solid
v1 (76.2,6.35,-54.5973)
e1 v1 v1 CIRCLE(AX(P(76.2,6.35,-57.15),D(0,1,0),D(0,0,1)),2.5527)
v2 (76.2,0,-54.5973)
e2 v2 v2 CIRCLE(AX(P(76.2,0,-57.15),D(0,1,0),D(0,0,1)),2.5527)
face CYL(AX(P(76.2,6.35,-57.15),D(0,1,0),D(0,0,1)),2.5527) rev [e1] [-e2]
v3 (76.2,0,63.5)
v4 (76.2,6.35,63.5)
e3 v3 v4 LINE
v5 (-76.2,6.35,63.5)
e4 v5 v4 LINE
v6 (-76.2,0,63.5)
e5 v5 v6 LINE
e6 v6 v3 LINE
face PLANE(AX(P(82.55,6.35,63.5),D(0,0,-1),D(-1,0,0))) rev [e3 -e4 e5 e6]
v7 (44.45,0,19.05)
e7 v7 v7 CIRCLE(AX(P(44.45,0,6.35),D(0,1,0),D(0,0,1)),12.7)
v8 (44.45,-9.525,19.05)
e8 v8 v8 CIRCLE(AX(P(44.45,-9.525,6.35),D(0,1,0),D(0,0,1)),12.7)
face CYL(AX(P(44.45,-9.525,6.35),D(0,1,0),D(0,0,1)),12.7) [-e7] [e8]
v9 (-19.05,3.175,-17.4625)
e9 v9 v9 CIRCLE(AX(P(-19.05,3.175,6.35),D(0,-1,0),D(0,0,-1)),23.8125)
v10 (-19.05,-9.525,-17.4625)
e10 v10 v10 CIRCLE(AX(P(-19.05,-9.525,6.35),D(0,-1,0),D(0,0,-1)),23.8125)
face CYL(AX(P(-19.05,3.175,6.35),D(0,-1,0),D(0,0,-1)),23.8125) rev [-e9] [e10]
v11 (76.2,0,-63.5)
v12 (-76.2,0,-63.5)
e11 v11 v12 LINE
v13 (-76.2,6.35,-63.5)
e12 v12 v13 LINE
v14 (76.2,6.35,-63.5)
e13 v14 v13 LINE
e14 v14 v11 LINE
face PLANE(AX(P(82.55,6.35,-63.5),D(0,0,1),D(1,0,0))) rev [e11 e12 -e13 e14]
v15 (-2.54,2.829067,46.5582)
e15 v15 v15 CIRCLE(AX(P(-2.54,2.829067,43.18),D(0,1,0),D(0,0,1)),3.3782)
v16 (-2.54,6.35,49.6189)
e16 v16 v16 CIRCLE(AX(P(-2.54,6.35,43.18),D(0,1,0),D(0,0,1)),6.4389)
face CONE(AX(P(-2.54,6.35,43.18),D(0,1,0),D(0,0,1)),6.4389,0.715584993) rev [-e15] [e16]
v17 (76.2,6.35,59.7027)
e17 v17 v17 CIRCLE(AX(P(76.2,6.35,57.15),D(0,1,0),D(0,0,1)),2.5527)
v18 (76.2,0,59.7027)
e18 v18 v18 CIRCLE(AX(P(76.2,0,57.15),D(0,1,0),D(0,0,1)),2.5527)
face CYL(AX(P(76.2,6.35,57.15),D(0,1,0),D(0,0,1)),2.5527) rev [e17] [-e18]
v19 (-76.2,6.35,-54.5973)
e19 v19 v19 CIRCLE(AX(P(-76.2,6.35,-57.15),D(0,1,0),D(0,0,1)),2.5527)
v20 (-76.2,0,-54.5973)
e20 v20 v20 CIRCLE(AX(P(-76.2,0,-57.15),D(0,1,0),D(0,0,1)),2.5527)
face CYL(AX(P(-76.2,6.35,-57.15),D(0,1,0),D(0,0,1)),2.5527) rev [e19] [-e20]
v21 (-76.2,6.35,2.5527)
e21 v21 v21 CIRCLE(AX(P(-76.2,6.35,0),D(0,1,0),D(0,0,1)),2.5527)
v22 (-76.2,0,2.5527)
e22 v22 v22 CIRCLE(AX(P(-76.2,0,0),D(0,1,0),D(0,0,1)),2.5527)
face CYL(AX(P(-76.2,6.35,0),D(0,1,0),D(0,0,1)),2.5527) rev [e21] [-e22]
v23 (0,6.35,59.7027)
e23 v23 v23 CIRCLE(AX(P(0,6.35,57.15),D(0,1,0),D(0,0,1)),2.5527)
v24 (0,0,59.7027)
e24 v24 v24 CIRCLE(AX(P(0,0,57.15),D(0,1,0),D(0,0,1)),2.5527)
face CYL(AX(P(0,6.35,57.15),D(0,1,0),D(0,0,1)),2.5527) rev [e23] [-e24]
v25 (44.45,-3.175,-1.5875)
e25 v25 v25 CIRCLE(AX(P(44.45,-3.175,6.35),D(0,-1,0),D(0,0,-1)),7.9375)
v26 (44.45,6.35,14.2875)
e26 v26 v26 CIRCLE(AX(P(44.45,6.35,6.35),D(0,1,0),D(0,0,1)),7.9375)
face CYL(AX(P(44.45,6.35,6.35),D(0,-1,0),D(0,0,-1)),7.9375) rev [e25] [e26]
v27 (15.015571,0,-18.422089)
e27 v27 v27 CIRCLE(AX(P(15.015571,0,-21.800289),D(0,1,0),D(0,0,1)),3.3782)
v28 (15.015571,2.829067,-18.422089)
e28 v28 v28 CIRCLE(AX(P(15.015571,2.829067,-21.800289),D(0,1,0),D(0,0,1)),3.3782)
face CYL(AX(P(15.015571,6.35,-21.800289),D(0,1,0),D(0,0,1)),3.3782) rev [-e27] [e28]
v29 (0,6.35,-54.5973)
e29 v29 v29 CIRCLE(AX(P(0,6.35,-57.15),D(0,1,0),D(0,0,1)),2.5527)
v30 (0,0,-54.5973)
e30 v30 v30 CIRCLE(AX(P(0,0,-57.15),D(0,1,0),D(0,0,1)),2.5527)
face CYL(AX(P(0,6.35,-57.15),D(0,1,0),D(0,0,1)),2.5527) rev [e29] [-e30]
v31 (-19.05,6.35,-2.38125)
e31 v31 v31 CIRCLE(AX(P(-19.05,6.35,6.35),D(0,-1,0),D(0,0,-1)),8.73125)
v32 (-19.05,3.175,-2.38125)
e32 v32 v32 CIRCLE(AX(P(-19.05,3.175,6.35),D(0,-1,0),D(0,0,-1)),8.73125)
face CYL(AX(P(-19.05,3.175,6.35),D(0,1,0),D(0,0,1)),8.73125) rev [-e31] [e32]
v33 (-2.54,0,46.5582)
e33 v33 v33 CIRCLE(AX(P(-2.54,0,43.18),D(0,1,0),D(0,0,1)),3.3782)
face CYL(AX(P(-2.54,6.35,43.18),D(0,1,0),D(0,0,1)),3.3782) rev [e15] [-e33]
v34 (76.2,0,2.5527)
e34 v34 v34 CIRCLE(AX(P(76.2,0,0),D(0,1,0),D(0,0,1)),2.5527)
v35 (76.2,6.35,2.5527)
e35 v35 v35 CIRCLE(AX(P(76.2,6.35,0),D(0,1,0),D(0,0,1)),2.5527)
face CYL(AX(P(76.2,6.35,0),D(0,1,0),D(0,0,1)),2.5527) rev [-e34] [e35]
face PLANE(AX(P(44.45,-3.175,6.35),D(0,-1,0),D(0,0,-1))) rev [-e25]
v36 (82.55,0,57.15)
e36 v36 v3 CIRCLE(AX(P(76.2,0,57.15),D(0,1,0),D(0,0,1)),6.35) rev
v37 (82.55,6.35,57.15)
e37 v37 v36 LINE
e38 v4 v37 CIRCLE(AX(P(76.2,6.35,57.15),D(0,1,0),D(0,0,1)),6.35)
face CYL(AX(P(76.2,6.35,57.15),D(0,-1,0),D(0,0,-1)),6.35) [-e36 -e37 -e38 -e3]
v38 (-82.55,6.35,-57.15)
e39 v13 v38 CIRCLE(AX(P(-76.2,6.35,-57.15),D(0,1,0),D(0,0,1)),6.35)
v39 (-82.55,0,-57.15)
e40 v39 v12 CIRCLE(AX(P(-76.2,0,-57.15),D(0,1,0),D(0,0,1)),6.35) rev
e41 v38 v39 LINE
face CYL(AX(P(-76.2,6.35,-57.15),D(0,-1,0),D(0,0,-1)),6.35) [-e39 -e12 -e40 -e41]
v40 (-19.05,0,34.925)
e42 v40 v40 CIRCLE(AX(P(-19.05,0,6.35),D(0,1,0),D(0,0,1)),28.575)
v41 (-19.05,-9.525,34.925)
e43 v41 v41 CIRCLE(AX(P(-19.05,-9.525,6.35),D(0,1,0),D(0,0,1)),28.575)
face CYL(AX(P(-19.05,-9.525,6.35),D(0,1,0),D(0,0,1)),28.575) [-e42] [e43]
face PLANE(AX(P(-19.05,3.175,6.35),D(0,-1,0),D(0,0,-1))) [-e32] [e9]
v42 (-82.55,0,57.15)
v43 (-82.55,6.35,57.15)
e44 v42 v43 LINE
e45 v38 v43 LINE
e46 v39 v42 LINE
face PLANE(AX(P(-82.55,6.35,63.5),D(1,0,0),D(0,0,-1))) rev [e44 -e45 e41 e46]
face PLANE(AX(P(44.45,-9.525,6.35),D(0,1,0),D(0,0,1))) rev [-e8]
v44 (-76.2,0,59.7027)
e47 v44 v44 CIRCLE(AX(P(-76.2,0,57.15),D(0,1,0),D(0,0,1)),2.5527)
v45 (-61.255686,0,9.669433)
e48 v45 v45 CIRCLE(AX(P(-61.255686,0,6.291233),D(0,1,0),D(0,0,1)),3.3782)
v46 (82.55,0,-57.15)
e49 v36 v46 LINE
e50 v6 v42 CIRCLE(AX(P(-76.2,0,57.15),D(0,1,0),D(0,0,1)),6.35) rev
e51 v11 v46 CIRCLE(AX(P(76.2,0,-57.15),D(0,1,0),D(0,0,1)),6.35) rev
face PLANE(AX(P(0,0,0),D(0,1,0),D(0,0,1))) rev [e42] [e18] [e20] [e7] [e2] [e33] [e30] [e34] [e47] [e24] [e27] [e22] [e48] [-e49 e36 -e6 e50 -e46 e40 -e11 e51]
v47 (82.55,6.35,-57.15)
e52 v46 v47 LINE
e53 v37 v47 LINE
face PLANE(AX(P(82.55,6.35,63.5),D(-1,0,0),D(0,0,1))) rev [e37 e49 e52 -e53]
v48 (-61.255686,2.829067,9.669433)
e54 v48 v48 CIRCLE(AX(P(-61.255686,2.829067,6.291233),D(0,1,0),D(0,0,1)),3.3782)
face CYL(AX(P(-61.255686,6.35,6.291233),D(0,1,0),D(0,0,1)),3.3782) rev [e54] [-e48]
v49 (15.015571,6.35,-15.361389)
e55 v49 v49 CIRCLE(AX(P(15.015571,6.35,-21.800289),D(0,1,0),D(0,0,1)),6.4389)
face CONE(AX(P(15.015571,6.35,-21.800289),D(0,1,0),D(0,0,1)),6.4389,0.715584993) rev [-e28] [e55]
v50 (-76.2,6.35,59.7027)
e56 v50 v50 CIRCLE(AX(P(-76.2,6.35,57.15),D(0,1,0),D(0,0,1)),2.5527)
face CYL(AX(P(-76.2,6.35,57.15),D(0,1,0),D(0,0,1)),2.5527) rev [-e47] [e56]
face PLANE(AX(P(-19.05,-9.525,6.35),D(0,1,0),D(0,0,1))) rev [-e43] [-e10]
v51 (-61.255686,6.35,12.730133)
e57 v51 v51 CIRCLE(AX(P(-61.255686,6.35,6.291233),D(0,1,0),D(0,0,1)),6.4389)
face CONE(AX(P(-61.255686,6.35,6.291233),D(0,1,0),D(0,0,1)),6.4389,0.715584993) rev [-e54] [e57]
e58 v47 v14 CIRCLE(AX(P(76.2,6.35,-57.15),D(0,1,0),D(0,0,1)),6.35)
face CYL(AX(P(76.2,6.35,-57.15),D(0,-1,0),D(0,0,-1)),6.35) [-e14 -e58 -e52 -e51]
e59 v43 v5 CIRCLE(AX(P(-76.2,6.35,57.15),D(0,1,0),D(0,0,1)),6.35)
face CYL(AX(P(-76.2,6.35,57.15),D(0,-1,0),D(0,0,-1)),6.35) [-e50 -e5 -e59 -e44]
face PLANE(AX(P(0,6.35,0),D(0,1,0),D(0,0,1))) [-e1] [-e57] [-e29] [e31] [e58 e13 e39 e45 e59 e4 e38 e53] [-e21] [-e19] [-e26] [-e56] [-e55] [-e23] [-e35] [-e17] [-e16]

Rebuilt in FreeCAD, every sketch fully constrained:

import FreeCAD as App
import Part
import Sketcher
Q = App.Units.Quantity


def edges_at(feature, points):
    """Names of the edges that pass closest to the given points."""
    edges = feature.Shape.Edges
    near = lambda p: min(range(len(edges)), key=lambda i: edges[i].distToShape(Part.Vertex(*p))[0])
    return sorted({f"Edge{near(p) + 1}" for p in points})


def add_polygon(sketch, points):
    """Adds a closed chain of lines whose ends are joined by coincident constraints."""
    first, n = sketch.GeometryCount, len(points)
    for a, b in zip(points, points[1:] + points[:1]):
        sketch.addGeometry(Part.LineSegment(App.Vector(*a, 0), App.Vector(*b, 0)), False)
    for i in range(n):
        sketch.addConstraint(Sketcher.Constraint("Coincident", first + i, 2, first + (i + 1) % n, 1))

doc = App.newDocument("Part")
params = doc.addObject("Spreadsheet::Sheet", "Params")
for row, (alias, value) in enumerate([
    ("sketch1_height", "5 in"),
    ("sketch1_diameter", "0.5625 in"),
    ("sketch1_diameter2", "0.625 in"),
    ("sketch1_width", "6.5 in"),
    ("pad1_length", "0.25 in"),
    ("sketch2_diameter", "1 in"),
    ("sketch2_diameter2", "2.25 in"),
    ("sketch2_diameter3", "0.5625 in"),
    ("sketch2_diameter4", "0.625 in"),
    ("pad2_length", "0.625 in"),
    ("sketch3_diameter", "0.6875 in"),
    ("pocket1_length", "0.125 in"),
    ("sketch4_diameter", "1.875 in"),
    ("pocket2_length", "0.5 in"),
    ("sketch5_diameter", "0.625 in"),
    ("pad3_length", "0.25 in"),
    ("sketch6_diameter", "0.266 in"),
    ("hole_diameter", "0.266 in"),
    ("hole_csink_diameter", "0.507 in"),
    ("fillet_radius", "0.25 in"),
    ("sketch7_diameter", "0.201 in"),
    ("hole2_diameter", "0.201 in"),
], start=1):
    params.set(f"A{row}", alias)
    params.set(f"B{row}", "=" + value)
    params.setAlias(f"B{row}", alias)

body = doc.addObject("PartDesign::Body", "Body")

# Sketch on XZ plane
sketch1 = body.newObject("Sketcher::SketchObject", "Sketch")
sketch1.AttachmentSupport = (doc.getObject("XZ_Plane"), [""])
sketch1.MapMode = "FlatFace"
add_polygon(sketch1, [(-82.55, -63.5), (-82.55, 63.5), (82.55, 63.5), (82.55, -63.5)])  # lines 0-3
sketch1.addGeometry(Part.Circle(App.Vector(-19.05, 6.35, 0), App.Vector(0, 0, 1), 7.14375), False)  # 4
sketch1.addGeometry(Part.Circle(App.Vector(44.45, 6.35, 0), App.Vector(0, 0, 1), 7.9375), False)  # 5
sketch1.addConstraint(Sketcher.Constraint("Vertical", 0))
sketch1.addConstraint(Sketcher.Constraint("Horizontal", 1))
sketch1.addConstraint(Sketcher.Constraint("Vertical", 2))
sketch1.addConstraint(Sketcher.Constraint("Horizontal", 3))
sketch1.addConstraint(Sketcher.Constraint("Symmetric", 0, 2, 2, 2, -1, 1))
sketch1.addConstraint(Sketcher.Constraint("Horizontal", 4, 3, 5, 3))
sketch1.addConstraint(Sketcher.Constraint("DistanceY", 0, 1, 0, 2, Q("5 in")))
sketch1.addConstraint(Sketcher.Constraint("Diameter", 4, Q("0.5625 in")))
sketch1.addConstraint(Sketcher.Constraint("Diameter", 5, Q("0.625 in")))
sketch1.addConstraint(Sketcher.Constraint("DistanceX", 1, 1, 1, 2, Q("6.5 in")))
sketch1.addConstraint(Sketcher.Constraint("DistanceX", 0, 2, 5, 3, Q("5 in")))
sketch1.addConstraint(Sketcher.Constraint("DistanceX", 4, 3, 1, 2, Q("4 in")))
sketch1.addConstraint(Sketcher.Constraint("DistanceY", -1, 1, 4, 3, Q("0.25 in")))
sketch1.setExpression("Constraints[10]", "Params.sketch1_height")
sketch1.setExpression("Constraints[11]", "Params.sketch1_diameter")
sketch1.setExpression("Constraints[12]", "Params.sketch1_diameter2")
sketch1.setExpression("Constraints[13]", "Params.sketch1_width")
pad1 = body.newObject("PartDesign::Pad", "Pad")
pad1.Profile = sketch1
pad1.setExpression("Length", "Params.pad1_length")
pad1.Reversed = True

# Sketch on XZ plane
sketch2 = body.newObject("Sketcher::SketchObject", "Sketch001")
sketch2.AttachmentSupport = (doc.getObject("XZ_Plane"), [""])
sketch2.MapMode = "FlatFace"
sketch2.AttachmentOffset = App.Placement(App.Vector(0, 0, -0.25 * 25.4), App.Rotation())
sketch2.addGeometry(Part.Circle(App.Vector(-19.05, 6.35, 0), App.Vector(0, 0, 1), 28.575), False)
sketch2.addGeometry(Part.Circle(App.Vector(-19.05, 6.35, 0), App.Vector(0, 0, 1), 7.14375), False)
sketch2.addGeometry(Part.Circle(App.Vector(44.45, 6.35, 0), App.Vector(0, 0, 1), 12.7), False)
sketch2.addGeometry(Part.Circle(App.Vector(44.45, 6.35, 0), App.Vector(0, 0, 1), 7.9375), False)
sketch2.addConstraint(Sketcher.Constraint("Coincident", 1, 3, 0, 3))
sketch2.addConstraint(Sketcher.Constraint("Coincident", 3, 3, 2, 3))
sketch2.addConstraint(Sketcher.Constraint("Horizontal", 1, 3, 2, 3))
sketch2.addConstraint(Sketcher.Constraint("Diameter", 2, Q("1 in")))
sketch2.addConstraint(Sketcher.Constraint("Diameter", 0, Q("2.25 in")))
sketch2.addConstraint(Sketcher.Constraint("Diameter", 1, Q("0.5625 in")))
sketch2.addConstraint(Sketcher.Constraint("Diameter", 3, Q("0.625 in")))
sketch2.addConstraint(Sketcher.Constraint("DistanceX", 0, 3, 2, 3, Q("2.5 in")))
sketch2.addConstraint(Sketcher.Constraint("DistanceX", 0, 3, -1, 1, Q("0.75 in")))
sketch2.addConstraint(Sketcher.Constraint("DistanceY", -1, 1, 0, 3, Q("0.25 in")))
sketch2.setExpression("Constraints[3]", "Params.sketch2_diameter")
sketch2.setExpression("Constraints[4]", "Params.sketch2_diameter2")
sketch2.setExpression("Constraints[5]", "Params.sketch2_diameter3")
sketch2.setExpression("Constraints[6]", "Params.sketch2_diameter4")
pad2 = body.newObject("PartDesign::Pad", "Pad001")
pad2.Profile = sketch2
pad2.setExpression("Length", "Params.pad2_length")

# Sketch on XZ plane
sketch3 = body.newObject("Sketcher::SketchObject", "Sketch002")
sketch3.AttachmentSupport = (doc.getObject("XZ_Plane"), [""])
sketch3.MapMode = "FlatFace"
sketch3.AttachmentOffset = App.Placement(App.Vector(0, 0, -0.25 * 25.4), App.Rotation())
sketch3.addGeometry(Part.Circle(App.Vector(-19.05, 6.35, 0), App.Vector(0, 0, 1), 8.73125), False)
sketch3.addConstraint(Sketcher.Constraint("Diameter", 0, Q("0.6875 in")))
sketch3.addConstraint(Sketcher.Constraint("DistanceX", 0, 3, -1, 1, Q("0.75 in")))
sketch3.addConstraint(Sketcher.Constraint("DistanceY", -1, 1, 0, 3, Q("0.25 in")))
sketch3.setExpression("Constraints[0]", "Params.sketch3_diameter")
pocket1 = body.newObject("PartDesign::Pocket", "Pocket")
pocket1.Profile = sketch3
pocket1.setExpression("Length", "Params.pocket1_length")
pocket1.Reversed = True

# Sketch on XZ plane
sketch4 = body.newObject("Sketcher::SketchObject", "Sketch003")
sketch4.AttachmentSupport = (doc.getObject("XZ_Plane"), [""])
sketch4.MapMode = "FlatFace"
sketch4.AttachmentOffset = App.Placement(App.Vector(0, 0, 0.375 * 25.4), App.Rotation())
sketch4.addGeometry(Part.Circle(App.Vector(-19.05, 6.35, 0), App.Vector(0, 0, 1), 23.8125), False)
sketch4.addConstraint(Sketcher.Constraint("Diameter", 0, Q("1.875 in")))
sketch4.addConstraint(Sketcher.Constraint("DistanceX", 0, 3, -1, 1, Q("0.75 in")))
sketch4.addConstraint(Sketcher.Constraint("DistanceY", -1, 1, 0, 3, Q("0.25 in")))
sketch4.setExpression("Constraints[0]", "Params.sketch4_diameter")
pocket2 = body.newObject("PartDesign::Pocket", "Pocket001")
pocket2.Profile = sketch4
pocket2.setExpression("Length", "Params.pocket2_length")

# Sketch on XZ plane
sketch5 = body.newObject("Sketcher::SketchObject", "Sketch004")
sketch5.AttachmentSupport = (doc.getObject("XZ_Plane"), [""])
sketch5.MapMode = "FlatFace"
sketch5.AttachmentOffset = App.Placement(App.Vector(0, 0, 0.125 * 25.4), App.Rotation())
sketch5.addGeometry(Part.Circle(App.Vector(44.45, 6.35, 0), App.Vector(0, 0, 1), 7.9375), False)
sketch5.addConstraint(Sketcher.Constraint("Diameter", 0, Q("0.625 in")))
sketch5.addConstraint(Sketcher.Constraint("DistanceX", -1, 1, 0, 3, Q("1.75 in")))
sketch5.addConstraint(Sketcher.Constraint("DistanceY", -1, 1, 0, 3, Q("0.25 in")))
sketch5.setExpression("Constraints[0]", "Params.sketch5_diameter")
pad3 = body.newObject("PartDesign::Pad", "Pad002")
pad3.Profile = sketch5
pad3.setExpression("Length", "Params.pad3_length")

# Sketch on XZ plane
sketch6 = body.newObject("Sketcher::SketchObject", "Sketch005")
sketch6.AttachmentSupport = (doc.getObject("XZ_Plane"), [""])
sketch6.MapMode = "FlatFace"
sketch6.AttachmentOffset = App.Placement(App.Vector(0, 0, -0.25 * 25.4), App.Rotation())
sketch6.addGeometry(Part.Circle(App.Vector(-61.255686, 6.291233, 0), App.Vector(0, 0, 1), 3.3782), False)
sketch6.addGeometry(Part.Circle(App.Vector(15.015571, -21.800289, 0), App.Vector(0, 0, 1), 3.3782), False)
sketch6.addGeometry(Part.Circle(App.Vector(-2.54, 43.18, 0), App.Vector(0, 0, 1), 3.3782), False)
sketch6.addConstraint(Sketcher.Constraint("Equal", 0, 1))
sketch6.addConstraint(Sketcher.Constraint("Equal", 1, 2))
sketch6.addConstraint(Sketcher.Constraint("Diameter", 0, Q("0.266 in")))
sketch6.addConstraint(Sketcher.Constraint("DistanceX", 2, 3, -1, 1, Q("0.1 in")))
sketch6.addConstraint(Sketcher.Constraint("DistanceY", -1, 1, 2, 3, Q("1.7 in")))
sketch6.addConstraint(Sketcher.Constraint("DistanceX", -1, 1, 1, 3, 15.015571))
sketch6.addConstraint(Sketcher.Constraint("DistanceY", 1, 3, -1, 1, 21.800289))
sketch6.addConstraint(Sketcher.Constraint("DistanceX", 0, 3, -1, 1, 61.255686))
sketch6.addConstraint(Sketcher.Constraint("DistanceY", -1, 1, 0, 3, 6.291233))
sketch6.setExpression("Constraints[2]", "Params.sketch6_diameter")
doc.recompute()
hole = body.newObject("PartDesign::Hole", "Hole")
hole.Profile = sketch6
hole.ThreadType = "None"
hole.setExpression("Diameter", "Params.hole_diameter")
hole.DepthType = "ThroughAll"
hole.HoleCutType = "Countersink"
hole.setExpression("HoleCutDiameter", "Params.hole_csink_diameter")
hole.HoleCutCountersinkAngle = 82
hole.Reversed = True
doc.recompute()

fillet = body.newObject("PartDesign::Fillet", "Fillet")
fillet.Base = (hole, edges_at(hole, [
    (-82.55, 3.175, -63.5),
    (82.55, 3.175, -63.5),
    (82.55, 3.175, 63.5),
    (-82.55, 3.175, 63.5),
]))
fillet.setExpression("Radius", "Params.fillet_radius")

# Sketch on XZ plane
sketch7 = body.newObject("Sketcher::SketchObject", "Sketch006")
sketch7.AttachmentSupport = (doc.getObject("XZ_Plane"), [""])
sketch7.MapMode = "FlatFace"
sketch7.AttachmentOffset = App.Placement(App.Vector(0, 0, -0.25 * 25.4), App.Rotation())
sketch7.addGeometry(Part.Circle(App.Vector(-76.2, 57.15, 0), App.Vector(0, 0, 1), 2.5527), False)
sketch7.addGeometry(Part.Circle(App.Vector(-76.2, -57.15, 0), App.Vector(0, 0, 1), 2.5527), False)
sketch7.addGeometry(Part.Circle(App.Vector(76.2, -57.15, 0), App.Vector(0, 0, 1), 2.5527), False)
sketch7.addGeometry(Part.Circle(App.Vector(76.2, 57.15, 0), App.Vector(0, 0, 1), 2.5527), False)
sketch7.addGeometry(Part.Circle(App.Vector(0, -57.15, 0), App.Vector(0, 0, 1), 2.5527), False)
sketch7.addGeometry(Part.Circle(App.Vector(0, 57.15, 0), App.Vector(0, 0, 1), 2.5527), False)
sketch7.addGeometry(Part.Circle(App.Vector(-76.2, 0, 0), App.Vector(0, 0, 1), 2.5527), False)
sketch7.addGeometry(Part.Circle(App.Vector(76.2, 0, 0), App.Vector(0, 0, 1), 2.5527), False)
sketch7.addConstraint(Sketcher.Constraint("Equal", 0, 1))
sketch7.addConstraint(Sketcher.Constraint("Equal", 1, 2))
sketch7.addConstraint(Sketcher.Constraint("Equal", 2, 3))
sketch7.addConstraint(Sketcher.Constraint("Equal", 3, 4))
sketch7.addConstraint(Sketcher.Constraint("Equal", 4, 5))
sketch7.addConstraint(Sketcher.Constraint("Equal", 5, 6))
sketch7.addConstraint(Sketcher.Constraint("Equal", 6, 7))
sketch7.addConstraint(Sketcher.Constraint("Symmetric", 0, 3, 2, 3, -1, 1))
sketch7.addConstraint(Sketcher.Constraint("Symmetric", 1, 3, 3, 3, -1, 1))
sketch7.addConstraint(Sketcher.Constraint("Symmetric", 4, 3, 5, 3, -1, 1))
sketch7.addConstraint(Sketcher.Constraint("Symmetric", 6, 3, 7, 3, -1, 1))
sketch7.addConstraint(Sketcher.Constraint("Symmetric", 1, 3, 2, 3, -2))
sketch7.addConstraint(Sketcher.Constraint("PointOnObject", 4, 3, -2))
sketch7.addConstraint(Sketcher.Constraint("PointOnObject", 6, 3, -1))
sketch7.addConstraint(Sketcher.Constraint("Horizontal", 2, 3, 4, 3))
sketch7.addConstraint(Sketcher.Constraint("Vertical", 1, 3, 6, 3))
sketch7.addConstraint(Sketcher.Constraint("Diameter", 0, Q("0.201 in")))
sketch7.addConstraint(Sketcher.Constraint("DistanceX", 0, 3, -1, 1, Q("3 in")))
sketch7.addConstraint(Sketcher.Constraint("DistanceY", 1, 3, 0, 3, Q("4.5 in")))
sketch7.setExpression("Constraints[16]", "Params.sketch7_diameter")
doc.recompute()
hole2 = body.newObject("PartDesign::Hole", "Hole001")
hole2.Profile = sketch7
hole2.ThreadType = "None"
hole2.setExpression("Diameter", "Params.hole2_diameter")
hole2.DepthType = "ThroughAll"
hole2.Reversed = True

doc.recompute()
